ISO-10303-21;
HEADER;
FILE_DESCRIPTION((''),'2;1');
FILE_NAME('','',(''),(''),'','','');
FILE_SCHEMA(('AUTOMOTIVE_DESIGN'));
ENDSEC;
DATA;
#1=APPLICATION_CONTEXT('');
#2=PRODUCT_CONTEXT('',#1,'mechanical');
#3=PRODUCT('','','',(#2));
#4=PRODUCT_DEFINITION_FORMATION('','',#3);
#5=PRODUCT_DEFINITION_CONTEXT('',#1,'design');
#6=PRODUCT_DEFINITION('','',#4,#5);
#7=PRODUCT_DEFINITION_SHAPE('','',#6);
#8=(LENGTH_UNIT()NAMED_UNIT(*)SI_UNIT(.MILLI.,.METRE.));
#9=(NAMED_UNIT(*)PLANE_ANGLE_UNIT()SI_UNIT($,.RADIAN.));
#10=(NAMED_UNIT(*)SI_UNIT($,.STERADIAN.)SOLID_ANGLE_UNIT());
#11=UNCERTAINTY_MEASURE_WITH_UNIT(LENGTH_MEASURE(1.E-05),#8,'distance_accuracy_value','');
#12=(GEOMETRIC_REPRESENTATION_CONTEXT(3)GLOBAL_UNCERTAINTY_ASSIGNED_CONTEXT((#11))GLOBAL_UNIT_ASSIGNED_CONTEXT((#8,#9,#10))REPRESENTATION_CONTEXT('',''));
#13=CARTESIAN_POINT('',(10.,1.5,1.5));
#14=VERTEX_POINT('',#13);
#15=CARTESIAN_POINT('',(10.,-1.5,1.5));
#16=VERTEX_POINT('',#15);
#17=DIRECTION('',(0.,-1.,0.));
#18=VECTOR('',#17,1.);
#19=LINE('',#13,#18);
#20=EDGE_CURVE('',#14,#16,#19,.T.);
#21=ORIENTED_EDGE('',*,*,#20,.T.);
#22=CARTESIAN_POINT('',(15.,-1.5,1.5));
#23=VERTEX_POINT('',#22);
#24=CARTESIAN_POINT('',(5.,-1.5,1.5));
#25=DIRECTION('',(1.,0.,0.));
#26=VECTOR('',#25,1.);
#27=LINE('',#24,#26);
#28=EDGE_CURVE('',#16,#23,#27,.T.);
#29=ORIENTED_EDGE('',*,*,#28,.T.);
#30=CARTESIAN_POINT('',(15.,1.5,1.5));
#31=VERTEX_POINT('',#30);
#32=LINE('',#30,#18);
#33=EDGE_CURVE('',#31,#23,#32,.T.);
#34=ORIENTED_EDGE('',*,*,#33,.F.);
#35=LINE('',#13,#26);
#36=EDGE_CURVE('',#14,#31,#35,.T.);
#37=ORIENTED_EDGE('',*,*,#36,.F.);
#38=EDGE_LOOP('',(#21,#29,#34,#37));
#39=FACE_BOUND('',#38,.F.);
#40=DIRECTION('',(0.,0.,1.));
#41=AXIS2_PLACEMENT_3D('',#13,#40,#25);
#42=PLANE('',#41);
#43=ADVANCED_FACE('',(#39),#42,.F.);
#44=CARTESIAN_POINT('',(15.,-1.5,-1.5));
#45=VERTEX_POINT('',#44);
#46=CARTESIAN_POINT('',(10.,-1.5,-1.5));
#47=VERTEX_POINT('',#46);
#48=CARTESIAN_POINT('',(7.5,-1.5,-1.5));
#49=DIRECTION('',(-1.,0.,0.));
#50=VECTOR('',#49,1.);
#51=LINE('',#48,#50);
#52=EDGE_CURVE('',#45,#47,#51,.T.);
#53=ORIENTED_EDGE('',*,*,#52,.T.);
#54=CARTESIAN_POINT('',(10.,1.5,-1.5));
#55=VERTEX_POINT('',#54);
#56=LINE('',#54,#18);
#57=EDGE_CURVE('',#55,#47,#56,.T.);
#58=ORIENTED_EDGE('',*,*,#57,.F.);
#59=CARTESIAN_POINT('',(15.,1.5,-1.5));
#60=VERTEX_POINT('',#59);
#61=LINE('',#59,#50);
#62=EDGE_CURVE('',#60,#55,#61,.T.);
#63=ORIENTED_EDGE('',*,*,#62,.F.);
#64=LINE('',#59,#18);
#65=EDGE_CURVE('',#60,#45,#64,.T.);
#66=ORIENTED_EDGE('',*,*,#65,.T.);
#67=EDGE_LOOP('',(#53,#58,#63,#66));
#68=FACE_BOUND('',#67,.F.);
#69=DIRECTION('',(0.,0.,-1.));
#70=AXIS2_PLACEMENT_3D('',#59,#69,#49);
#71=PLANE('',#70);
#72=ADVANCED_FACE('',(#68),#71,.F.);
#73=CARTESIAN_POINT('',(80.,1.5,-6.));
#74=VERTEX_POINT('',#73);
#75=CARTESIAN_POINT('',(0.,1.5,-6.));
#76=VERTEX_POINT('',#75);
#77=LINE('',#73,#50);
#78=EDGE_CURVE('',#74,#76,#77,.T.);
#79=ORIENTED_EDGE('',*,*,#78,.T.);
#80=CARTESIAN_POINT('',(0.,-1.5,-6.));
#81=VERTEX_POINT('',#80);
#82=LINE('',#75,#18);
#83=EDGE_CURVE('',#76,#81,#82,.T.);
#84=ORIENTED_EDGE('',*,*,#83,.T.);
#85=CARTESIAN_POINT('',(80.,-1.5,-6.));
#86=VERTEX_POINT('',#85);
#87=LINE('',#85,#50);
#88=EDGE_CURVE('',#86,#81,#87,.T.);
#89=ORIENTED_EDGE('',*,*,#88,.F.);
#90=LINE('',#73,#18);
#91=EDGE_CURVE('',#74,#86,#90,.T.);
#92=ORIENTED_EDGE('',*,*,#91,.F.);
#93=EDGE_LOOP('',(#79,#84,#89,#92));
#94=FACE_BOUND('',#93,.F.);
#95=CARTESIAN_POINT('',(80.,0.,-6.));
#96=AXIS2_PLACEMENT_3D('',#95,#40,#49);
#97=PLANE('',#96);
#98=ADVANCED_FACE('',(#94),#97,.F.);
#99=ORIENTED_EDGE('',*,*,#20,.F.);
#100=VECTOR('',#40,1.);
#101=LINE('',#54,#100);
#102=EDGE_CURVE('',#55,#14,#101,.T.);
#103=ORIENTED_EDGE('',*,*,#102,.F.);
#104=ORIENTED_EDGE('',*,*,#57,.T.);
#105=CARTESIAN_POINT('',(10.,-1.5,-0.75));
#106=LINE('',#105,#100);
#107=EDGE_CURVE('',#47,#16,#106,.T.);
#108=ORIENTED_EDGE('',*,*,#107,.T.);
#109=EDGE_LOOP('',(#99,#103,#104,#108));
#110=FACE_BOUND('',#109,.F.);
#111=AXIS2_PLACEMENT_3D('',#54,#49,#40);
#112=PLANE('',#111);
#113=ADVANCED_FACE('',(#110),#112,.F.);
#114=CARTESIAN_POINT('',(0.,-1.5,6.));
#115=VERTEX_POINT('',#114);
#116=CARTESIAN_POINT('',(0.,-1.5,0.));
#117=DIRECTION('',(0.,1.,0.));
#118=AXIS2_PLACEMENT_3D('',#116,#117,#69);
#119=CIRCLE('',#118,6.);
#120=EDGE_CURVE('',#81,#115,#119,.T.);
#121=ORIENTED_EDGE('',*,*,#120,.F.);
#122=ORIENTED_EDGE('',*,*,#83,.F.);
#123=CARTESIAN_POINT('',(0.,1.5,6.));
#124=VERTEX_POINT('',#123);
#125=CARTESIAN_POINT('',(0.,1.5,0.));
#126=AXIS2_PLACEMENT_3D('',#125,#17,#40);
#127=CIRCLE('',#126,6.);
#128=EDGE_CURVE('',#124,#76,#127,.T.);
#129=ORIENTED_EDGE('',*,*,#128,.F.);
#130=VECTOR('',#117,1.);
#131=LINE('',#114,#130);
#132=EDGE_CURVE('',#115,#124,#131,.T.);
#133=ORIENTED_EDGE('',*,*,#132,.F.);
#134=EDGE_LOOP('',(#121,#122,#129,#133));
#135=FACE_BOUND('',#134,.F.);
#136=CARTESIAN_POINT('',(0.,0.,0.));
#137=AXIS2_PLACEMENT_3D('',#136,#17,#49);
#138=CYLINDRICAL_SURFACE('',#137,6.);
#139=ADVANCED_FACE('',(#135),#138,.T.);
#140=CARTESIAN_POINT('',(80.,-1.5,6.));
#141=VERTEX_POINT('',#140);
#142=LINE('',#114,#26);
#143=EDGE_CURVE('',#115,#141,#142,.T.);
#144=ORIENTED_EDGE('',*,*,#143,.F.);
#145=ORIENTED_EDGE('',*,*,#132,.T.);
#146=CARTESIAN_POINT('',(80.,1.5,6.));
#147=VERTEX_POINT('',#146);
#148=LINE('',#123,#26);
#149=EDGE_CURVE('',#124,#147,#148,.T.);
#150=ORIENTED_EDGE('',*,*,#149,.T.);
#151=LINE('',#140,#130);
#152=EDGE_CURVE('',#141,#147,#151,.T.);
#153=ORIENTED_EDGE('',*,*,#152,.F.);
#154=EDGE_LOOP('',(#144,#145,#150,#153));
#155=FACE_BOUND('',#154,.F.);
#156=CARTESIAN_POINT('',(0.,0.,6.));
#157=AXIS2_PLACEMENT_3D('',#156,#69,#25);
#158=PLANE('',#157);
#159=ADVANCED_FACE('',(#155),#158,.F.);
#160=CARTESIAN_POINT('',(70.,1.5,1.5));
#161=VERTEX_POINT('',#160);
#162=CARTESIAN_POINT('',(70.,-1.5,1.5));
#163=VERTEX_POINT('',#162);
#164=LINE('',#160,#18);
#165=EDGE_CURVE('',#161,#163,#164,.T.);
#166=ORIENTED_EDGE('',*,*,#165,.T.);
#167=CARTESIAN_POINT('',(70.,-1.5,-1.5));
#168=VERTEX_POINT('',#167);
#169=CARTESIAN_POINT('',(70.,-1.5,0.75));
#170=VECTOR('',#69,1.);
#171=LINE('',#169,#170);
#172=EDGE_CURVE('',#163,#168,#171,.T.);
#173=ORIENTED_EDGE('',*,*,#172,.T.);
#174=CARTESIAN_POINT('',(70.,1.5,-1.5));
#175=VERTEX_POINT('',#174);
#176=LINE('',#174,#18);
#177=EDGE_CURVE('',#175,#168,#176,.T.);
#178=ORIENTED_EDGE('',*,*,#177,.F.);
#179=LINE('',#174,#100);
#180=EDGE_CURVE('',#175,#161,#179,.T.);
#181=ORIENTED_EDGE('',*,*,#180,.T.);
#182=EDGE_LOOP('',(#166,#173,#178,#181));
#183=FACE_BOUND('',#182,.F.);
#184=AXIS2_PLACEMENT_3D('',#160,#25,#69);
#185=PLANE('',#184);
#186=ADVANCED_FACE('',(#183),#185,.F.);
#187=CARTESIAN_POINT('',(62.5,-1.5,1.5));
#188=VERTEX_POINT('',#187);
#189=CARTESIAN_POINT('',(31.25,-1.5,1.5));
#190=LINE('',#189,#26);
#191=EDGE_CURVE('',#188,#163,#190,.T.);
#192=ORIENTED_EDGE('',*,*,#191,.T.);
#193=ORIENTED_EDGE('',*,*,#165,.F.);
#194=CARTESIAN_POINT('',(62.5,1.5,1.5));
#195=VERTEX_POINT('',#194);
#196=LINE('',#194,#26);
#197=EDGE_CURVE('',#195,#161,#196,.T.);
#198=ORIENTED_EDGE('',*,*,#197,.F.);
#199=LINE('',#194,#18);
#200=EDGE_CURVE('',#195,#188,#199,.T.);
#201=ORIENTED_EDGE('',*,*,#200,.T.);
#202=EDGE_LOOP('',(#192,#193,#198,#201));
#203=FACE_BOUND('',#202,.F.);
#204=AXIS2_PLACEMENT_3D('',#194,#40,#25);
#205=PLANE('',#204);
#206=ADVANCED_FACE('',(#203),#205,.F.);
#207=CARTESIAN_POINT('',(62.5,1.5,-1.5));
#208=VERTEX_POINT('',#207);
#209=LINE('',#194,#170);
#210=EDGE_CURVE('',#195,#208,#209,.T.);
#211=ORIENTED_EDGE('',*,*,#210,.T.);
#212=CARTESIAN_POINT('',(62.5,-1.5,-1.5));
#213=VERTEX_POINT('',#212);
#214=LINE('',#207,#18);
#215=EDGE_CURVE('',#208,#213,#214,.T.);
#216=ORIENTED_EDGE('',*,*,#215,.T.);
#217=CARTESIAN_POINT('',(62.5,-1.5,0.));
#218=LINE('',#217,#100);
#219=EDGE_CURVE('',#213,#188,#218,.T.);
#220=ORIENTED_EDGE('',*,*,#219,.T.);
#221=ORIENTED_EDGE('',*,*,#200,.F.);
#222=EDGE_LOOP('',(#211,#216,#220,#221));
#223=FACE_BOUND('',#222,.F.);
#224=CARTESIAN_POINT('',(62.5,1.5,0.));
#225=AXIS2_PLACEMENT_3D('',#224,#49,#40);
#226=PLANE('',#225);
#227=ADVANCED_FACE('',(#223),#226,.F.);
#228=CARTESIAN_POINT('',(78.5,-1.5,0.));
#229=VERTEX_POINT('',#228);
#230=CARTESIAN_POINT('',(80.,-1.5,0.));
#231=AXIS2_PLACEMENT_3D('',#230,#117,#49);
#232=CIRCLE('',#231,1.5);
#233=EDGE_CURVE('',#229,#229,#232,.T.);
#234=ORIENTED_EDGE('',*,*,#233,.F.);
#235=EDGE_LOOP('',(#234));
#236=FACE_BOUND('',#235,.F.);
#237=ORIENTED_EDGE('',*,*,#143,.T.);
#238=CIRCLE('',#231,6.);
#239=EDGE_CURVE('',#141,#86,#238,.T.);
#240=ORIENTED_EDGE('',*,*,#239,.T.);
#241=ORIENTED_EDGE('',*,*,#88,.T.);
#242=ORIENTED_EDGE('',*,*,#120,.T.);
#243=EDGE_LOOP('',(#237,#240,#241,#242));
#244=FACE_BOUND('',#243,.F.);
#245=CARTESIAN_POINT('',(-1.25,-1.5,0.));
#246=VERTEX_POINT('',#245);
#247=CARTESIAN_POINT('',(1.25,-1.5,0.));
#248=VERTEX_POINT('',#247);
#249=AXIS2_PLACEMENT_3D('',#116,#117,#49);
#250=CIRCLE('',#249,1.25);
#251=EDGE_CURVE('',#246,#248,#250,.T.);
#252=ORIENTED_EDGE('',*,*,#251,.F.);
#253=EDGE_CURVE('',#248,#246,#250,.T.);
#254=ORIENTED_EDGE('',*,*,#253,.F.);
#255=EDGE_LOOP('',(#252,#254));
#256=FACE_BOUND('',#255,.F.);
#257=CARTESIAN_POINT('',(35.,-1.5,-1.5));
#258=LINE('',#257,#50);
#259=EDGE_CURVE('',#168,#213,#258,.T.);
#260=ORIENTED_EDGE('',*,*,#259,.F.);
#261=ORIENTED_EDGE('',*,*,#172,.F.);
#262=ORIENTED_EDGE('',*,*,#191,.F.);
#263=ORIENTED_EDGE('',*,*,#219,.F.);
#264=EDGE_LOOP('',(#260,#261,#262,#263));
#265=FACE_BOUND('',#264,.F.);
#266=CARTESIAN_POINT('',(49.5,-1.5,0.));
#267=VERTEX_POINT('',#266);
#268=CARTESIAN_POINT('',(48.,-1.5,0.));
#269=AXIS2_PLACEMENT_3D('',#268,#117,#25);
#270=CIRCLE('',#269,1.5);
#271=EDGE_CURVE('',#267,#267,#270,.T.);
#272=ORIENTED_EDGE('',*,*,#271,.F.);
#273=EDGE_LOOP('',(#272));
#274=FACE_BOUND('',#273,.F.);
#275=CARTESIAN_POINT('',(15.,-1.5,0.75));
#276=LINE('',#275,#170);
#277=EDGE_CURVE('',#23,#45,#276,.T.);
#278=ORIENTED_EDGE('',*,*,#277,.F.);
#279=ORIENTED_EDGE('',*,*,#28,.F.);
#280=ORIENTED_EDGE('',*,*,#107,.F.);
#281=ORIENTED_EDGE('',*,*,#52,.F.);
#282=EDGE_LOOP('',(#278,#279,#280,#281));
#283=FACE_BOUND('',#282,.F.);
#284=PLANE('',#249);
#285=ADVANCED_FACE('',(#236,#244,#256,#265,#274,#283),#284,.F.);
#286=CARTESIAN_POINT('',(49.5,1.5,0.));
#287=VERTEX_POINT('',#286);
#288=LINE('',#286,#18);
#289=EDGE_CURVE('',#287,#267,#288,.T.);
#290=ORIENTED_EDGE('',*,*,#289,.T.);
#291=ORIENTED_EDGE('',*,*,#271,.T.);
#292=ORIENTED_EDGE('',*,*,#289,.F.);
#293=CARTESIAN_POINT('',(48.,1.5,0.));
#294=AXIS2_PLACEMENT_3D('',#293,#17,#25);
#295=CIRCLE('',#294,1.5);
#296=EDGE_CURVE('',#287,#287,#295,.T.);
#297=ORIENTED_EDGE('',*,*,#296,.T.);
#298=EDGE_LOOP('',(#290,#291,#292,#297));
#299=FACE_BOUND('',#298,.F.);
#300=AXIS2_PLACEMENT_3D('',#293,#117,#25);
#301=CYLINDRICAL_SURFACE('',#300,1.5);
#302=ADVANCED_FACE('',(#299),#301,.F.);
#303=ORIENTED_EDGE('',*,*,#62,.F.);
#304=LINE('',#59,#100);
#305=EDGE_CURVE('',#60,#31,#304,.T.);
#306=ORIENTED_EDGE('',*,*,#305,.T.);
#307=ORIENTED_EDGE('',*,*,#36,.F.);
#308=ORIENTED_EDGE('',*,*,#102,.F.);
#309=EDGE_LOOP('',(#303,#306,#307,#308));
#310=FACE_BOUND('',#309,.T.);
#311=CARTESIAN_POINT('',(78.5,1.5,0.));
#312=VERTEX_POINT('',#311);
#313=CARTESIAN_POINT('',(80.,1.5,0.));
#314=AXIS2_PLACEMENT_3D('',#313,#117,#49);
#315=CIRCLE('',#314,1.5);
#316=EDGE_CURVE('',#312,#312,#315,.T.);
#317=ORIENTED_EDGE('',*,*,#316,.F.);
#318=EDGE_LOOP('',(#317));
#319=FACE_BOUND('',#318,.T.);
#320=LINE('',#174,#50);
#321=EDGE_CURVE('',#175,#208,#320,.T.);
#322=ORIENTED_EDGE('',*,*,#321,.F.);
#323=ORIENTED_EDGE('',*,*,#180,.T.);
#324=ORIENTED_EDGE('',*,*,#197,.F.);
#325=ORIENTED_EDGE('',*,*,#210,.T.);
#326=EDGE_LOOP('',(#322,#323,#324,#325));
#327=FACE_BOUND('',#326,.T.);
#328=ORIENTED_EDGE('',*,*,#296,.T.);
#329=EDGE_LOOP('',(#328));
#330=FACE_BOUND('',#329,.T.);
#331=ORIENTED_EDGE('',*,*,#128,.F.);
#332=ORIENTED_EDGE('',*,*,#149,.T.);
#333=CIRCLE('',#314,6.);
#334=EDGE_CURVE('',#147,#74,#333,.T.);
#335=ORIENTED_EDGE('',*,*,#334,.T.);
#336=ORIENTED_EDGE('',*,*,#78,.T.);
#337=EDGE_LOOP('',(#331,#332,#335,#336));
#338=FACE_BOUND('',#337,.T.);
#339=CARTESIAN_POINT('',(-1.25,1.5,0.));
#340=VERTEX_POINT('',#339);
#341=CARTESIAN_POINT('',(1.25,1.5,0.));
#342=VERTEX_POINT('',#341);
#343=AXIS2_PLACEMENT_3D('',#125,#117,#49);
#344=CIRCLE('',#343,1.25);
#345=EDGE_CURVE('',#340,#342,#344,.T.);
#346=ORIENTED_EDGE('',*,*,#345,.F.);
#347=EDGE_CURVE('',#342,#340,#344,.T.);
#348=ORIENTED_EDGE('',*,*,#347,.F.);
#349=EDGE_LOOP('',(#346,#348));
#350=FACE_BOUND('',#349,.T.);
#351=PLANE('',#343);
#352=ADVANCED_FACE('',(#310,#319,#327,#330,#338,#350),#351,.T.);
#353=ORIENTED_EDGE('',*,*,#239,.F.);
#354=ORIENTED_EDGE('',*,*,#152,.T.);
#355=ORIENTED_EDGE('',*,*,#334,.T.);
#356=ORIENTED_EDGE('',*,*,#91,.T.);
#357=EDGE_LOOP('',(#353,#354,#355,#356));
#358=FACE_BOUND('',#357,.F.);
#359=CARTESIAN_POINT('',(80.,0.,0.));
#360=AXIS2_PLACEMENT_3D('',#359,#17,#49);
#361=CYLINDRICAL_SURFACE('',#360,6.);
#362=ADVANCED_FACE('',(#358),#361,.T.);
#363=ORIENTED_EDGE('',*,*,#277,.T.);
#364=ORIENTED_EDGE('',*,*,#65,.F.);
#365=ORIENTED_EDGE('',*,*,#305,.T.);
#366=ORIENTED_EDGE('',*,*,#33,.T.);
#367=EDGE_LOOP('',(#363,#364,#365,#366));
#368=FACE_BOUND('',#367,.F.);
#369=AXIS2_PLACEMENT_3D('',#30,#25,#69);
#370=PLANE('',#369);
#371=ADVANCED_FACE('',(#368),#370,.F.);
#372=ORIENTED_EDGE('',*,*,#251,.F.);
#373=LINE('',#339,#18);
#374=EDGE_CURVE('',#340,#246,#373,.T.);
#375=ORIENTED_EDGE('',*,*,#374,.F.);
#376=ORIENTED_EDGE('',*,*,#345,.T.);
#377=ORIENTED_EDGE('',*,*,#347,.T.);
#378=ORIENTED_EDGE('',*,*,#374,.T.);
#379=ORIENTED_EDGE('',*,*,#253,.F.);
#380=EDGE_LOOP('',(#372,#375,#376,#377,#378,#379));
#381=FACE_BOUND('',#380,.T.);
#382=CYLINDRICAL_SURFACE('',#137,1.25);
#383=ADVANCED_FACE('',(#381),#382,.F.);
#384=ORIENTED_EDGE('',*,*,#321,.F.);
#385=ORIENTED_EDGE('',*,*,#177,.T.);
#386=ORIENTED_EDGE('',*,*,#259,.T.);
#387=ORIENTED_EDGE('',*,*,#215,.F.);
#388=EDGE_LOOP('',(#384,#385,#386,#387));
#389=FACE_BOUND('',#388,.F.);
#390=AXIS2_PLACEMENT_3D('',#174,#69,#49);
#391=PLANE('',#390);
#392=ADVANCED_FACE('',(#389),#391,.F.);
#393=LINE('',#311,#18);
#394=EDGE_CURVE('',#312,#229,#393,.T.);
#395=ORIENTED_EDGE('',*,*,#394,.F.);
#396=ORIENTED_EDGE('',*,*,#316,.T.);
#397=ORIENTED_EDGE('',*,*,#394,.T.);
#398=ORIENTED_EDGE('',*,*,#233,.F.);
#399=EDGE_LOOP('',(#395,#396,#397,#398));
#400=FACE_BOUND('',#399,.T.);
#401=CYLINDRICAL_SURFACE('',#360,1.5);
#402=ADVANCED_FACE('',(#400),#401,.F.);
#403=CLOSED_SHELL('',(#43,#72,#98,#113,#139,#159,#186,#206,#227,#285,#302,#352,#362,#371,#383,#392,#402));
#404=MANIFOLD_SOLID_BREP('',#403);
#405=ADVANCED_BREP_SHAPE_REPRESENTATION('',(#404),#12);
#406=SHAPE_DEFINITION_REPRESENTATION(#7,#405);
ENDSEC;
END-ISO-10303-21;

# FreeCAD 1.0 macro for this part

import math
import FreeCAD as App
import Part
import Sketcher

V = App.Vector
Q = App.Units.Quantity

doc = App.newDocument("Part")
body = doc.addObject("PartDesign::Body", "Body")

# Sketch on XZ plane
sketch1 = body.newObject("Sketcher::SketchObject", "Sketch")
sketch1.AttachmentSupport = (doc.getObject("XZ_Plane"), [""])
sketch1.MapMode = "FlatFace"
sketch1.addGeometry([
    Part.LineSegment(V(0, 6, 0), V(80, 6, 0)),  # 0
    Part.ArcOfCircle(Part.Circle(V(80, 0, 0), V(0, 0, 1), 6), math.radians(-90), math.radians(90)),  # 1
    Part.LineSegment(V(80, -6, 0), V(0, -6, 0)),  # 2
    Part.ArcOfCircle(Part.Circle(V(0, 0, 0), V(0, 0, 1), 6), math.radians(90), math.radians(270)),  # 3
    Part.Circle(V(0, 0, 0), V(0, 0, 1), 1.2),  # 4
    Part.Circle(V(80, 0, 0), V(0, 0, 1), 1.5),  # 5
], False)
sketch1.addConstraint([
    Sketcher.Constraint("Tangent", 0, 2, 1, 2),
    Sketcher.Constraint("Tangent", 1, 1, 2, 1),
    Sketcher.Constraint("Tangent", 2, 2, 3, 2),
    Sketcher.Constraint("Tangent", 3, 1, 0, 1),
    Sketcher.Constraint("Horizontal", 0),
    Sketcher.Constraint("Horizontal", 2),
    Sketcher.Constraint("Coincident", 3, 3, -1, 1),
    Sketcher.Constraint("Coincident", 4, 3, -1, 1),
    Sketcher.Constraint("Coincident", 5, 3, 1, 3),
    Sketcher.Constraint("Diameter", 5, Q("3 mm")),
    Sketcher.Constraint("Radius", 1, Q("6 mm")),
    Sketcher.Constraint("Diameter", 4, Q("2.5 mm")),
    Sketcher.Constraint("DistanceX", 0, 1, 0, 2, Q("80 mm")),
])
pad1 = body.newObject("PartDesign::Pad", "Pad")
pad1.Profile = sketch1
pad1.Length = 3
pad1.Midplane = True

# Sketch on XZ plane
sketch2 = body.newObject("Sketcher::SketchObject", "Sketch001")
sketch2.AttachmentSupport = (doc.getObject("XZ_Plane"), [""])
sketch2.MapMode = "FlatFace"
sketch2.AttachmentOffset = App.Placement(V(0, 0, -1.5), App.Rotation())
sketch2.addGeometry([
    Part.LineSegment(V(15, 1.5, 0), V(15, -1.5, 0)),  # 0
    Part.LineSegment(V(15, -1.5, 0), V(10, -1.5, 0)),  # 1
    Part.LineSegment(V(10, -1.5, 0), V(10, 1.5, 0)),  # 2
    Part.LineSegment(V(10, 1.5, 0), V(15, 1.5, 0)),  # 3
    Part.Circle(V(48, 0, 0), V(0, 0, 1), 1.5),  # 4
    Part.LineSegment(V(70, 1.5, 0), V(70, -1.5, 0)),  # 5
    Part.LineSegment(V(70, -1.5, 0), V(62.5, -1.5, 0)),  # 6
    Part.LineSegment(V(62.5, -1.5, 0), V(62.5, 1.5, 0)),  # 7
    Part.LineSegment(V(62.5, 1.5, 0), V(70, 1.5, 0)),  # 8
], False)
sketch2.addConstraint([
    Sketcher.Constraint("Coincident", 0, 2, 1, 1),
    Sketcher.Constraint("Coincident", 1, 2, 2, 1),
    Sketcher.Constraint("Coincident", 2, 2, 3, 1),
    Sketcher.Constraint("Coincident", 3, 2, 0, 1),
    Sketcher.Constraint("Coincident", 5, 2, 6, 1),
    Sketcher.Constraint("Coincident", 6, 2, 7, 1),
    Sketcher.Constraint("Coincident", 7, 2, 8, 1),
    Sketcher.Constraint("Coincident", 8, 2, 5, 1),
    Sketcher.Constraint("Vertical", 0),
    Sketcher.Constraint("Horizontal", 1),
    Sketcher.Constraint("Vertical", 2),
    Sketcher.Constraint("Horizontal", 3),
    Sketcher.Constraint("Vertical", 5),
    Sketcher.Constraint("Horizontal", 6),
    Sketcher.Constraint("Vertical", 7),
    Sketcher.Constraint("Horizontal", 8),
    Sketcher.Constraint("PointOnObject", 4, 3, -1),
    Sketcher.Constraint("Horizontal", 1, 2, 5, 2),
    Sketcher.Constraint("Horizontal", 3, 2, 7, 2),
    Sketcher.Constraint("Diameter", 4, Q("3 mm")),
    Sketcher.Constraint("DistanceX", 1, 2, 1, 1, Q("5 mm")),
    Sketcher.Constraint("DistanceY", 0, 2, 0, 1, Q("3 mm")),
    Sketcher.Constraint("DistanceX", 6, 2, 6, 1, Q("7.5 mm")),
    Sketcher.Constraint("DistanceX", -1, 1, 1, 2, Q("10 mm")),
    Sketcher.Constraint("DistanceX", 0, 2, 4, 3, Q("33 mm")),
    Sketcher.Constraint("DistanceY", 0, 2, -1, 1, Q("1.5 mm")),
    Sketcher.Constraint("DistanceX", 4, 3, 6, 2, Q("14.5 mm")),
])
pocket1 = body.newObject("PartDesign::Pocket", "Pocket")
pocket1.Profile = sketch2
pocket1.Length = 10
pocket1.Reversed = True

doc.recompute()
